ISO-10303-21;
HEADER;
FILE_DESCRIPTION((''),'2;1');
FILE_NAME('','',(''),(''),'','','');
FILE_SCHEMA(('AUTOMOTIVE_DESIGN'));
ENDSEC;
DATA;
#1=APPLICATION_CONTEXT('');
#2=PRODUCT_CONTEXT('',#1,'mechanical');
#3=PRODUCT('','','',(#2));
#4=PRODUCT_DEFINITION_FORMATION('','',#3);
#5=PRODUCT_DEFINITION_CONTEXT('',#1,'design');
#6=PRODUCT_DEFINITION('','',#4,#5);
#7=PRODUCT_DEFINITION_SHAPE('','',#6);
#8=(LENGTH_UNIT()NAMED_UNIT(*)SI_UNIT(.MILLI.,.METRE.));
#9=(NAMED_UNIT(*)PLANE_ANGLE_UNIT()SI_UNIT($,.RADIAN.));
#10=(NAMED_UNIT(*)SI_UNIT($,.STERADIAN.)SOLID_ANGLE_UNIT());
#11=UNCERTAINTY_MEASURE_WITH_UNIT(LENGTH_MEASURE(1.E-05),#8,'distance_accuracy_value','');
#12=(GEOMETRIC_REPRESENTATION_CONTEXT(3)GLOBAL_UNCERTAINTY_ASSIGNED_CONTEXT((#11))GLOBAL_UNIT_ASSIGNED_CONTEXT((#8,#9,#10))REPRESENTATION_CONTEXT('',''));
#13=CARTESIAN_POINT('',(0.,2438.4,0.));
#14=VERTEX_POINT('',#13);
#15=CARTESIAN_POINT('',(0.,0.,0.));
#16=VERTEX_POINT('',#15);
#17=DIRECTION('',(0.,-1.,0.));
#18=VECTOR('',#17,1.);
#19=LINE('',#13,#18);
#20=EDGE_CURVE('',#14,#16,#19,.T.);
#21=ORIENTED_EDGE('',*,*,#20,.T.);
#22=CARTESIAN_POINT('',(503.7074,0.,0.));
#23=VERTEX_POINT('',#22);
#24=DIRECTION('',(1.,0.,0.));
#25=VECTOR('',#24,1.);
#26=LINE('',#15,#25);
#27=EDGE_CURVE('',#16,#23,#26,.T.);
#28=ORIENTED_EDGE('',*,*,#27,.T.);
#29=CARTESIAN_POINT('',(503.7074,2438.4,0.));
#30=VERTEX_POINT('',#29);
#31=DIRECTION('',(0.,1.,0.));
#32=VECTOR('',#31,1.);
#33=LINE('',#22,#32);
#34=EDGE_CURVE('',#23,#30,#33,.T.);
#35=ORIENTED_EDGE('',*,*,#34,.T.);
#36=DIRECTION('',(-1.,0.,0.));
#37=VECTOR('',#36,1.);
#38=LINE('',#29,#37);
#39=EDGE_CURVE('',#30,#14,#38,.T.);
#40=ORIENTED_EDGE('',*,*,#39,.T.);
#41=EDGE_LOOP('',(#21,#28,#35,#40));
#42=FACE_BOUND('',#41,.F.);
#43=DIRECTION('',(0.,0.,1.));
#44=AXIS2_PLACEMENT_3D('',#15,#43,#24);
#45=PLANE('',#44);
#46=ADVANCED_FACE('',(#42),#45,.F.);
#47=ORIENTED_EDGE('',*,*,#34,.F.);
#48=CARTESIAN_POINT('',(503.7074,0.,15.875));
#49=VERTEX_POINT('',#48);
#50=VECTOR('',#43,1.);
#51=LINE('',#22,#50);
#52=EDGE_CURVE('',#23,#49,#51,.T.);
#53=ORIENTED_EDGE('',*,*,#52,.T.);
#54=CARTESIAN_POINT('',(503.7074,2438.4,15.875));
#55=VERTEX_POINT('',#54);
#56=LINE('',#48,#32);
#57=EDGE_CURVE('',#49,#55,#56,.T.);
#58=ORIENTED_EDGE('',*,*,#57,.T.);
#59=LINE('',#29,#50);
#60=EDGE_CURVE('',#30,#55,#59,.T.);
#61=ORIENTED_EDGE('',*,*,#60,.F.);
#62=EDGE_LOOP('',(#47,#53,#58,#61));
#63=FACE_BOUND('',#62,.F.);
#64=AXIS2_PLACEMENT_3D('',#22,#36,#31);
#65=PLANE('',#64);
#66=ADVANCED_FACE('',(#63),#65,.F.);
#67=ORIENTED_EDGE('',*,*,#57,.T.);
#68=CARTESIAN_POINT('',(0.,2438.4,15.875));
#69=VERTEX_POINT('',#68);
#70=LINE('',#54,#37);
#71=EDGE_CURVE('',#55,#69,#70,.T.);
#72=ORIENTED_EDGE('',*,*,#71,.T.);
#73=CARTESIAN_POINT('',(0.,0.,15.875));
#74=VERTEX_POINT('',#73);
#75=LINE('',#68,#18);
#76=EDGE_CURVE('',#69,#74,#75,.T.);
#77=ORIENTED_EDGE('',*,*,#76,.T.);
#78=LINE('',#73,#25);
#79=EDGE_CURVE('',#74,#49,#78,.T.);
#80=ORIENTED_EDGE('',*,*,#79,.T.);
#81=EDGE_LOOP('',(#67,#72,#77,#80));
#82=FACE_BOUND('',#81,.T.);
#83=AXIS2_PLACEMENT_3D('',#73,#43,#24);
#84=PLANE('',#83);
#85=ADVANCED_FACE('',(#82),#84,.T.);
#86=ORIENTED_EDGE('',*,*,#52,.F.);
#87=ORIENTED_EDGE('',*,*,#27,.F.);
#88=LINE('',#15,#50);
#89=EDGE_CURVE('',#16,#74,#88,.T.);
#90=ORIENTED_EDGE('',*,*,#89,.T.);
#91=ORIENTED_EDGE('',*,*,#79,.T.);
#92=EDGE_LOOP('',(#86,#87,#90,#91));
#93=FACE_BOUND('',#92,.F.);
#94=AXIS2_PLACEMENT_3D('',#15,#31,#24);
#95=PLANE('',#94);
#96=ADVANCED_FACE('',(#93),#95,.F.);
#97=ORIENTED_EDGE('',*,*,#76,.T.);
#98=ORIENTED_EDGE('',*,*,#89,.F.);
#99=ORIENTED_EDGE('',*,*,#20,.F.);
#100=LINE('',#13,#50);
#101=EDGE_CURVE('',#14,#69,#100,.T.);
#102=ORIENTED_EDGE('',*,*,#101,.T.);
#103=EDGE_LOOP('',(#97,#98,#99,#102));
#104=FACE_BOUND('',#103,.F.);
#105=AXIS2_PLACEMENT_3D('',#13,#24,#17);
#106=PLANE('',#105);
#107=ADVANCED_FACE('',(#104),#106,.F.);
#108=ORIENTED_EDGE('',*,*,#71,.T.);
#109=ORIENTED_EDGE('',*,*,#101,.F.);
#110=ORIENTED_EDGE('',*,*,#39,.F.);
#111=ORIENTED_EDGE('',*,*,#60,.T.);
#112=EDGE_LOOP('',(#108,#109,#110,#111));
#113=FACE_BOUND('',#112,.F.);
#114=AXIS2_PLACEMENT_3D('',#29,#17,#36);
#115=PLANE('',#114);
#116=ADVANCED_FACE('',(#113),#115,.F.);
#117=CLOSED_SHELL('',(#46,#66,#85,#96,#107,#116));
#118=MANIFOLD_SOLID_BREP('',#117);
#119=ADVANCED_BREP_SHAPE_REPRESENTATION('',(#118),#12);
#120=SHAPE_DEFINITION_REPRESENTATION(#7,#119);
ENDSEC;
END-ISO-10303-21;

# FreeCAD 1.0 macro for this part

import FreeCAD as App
import Part
import Sketcher
from FreeCAD import Vector
Q = App.Units.Quantity


def add_polygon(sketch, points):
    """Adds a closed chain of lines whose ends are joined by coincident constraints."""
    first, n = sketch.GeometryCount, len(points)
    for a, b in zip(points, points[1:] + points[:1]):
        sketch.addGeometry(Part.LineSegment(App.Vector(*a, 0), App.Vector(*b, 0)), False)
    for i in range(n):
        sketch.addConstraint(Sketcher.Constraint("Coincident", first + i, 2, first + (i + 1) % n, 1))

doc = App.newDocument("Part")
body = doc.addObject("PartDesign::Body", "Body")

# Sketch on XY plane
sketch1 = body.newObject("Sketcher::SketchObject", "Sketch")
sketch1.AttachmentSupport = (doc.getObject("XY_Plane"), [""])
sketch1.MapMode = "FlatFace"
add_polygon(sketch1, [(0, 2438), (0, 0), (504, 0), (504, 2438)])  # lines 0-3
sketch1.addConstraint([
    Sketcher.Constraint("Vertical", 0),
    Sketcher.Constraint("Horizontal", 1),
    Sketcher.Constraint("Vertical", 2),
    Sketcher.Constraint("Horizontal", 3),
    Sketcher.Constraint("Coincident", 0, 2, -1, 1),
    Sketcher.Constraint("DistanceY", 0, 2, 0, 1, Q("96 in")),
    Sketcher.Constraint("DistanceX", 1, 1, 1, 2, Q("19.831 in")),
])
pad1 = body.newObject("PartDesign::Pad", "Pad")
pad1.Profile = sketch1
pad1.Length = Q("0.625 in")

doc.recompute()
